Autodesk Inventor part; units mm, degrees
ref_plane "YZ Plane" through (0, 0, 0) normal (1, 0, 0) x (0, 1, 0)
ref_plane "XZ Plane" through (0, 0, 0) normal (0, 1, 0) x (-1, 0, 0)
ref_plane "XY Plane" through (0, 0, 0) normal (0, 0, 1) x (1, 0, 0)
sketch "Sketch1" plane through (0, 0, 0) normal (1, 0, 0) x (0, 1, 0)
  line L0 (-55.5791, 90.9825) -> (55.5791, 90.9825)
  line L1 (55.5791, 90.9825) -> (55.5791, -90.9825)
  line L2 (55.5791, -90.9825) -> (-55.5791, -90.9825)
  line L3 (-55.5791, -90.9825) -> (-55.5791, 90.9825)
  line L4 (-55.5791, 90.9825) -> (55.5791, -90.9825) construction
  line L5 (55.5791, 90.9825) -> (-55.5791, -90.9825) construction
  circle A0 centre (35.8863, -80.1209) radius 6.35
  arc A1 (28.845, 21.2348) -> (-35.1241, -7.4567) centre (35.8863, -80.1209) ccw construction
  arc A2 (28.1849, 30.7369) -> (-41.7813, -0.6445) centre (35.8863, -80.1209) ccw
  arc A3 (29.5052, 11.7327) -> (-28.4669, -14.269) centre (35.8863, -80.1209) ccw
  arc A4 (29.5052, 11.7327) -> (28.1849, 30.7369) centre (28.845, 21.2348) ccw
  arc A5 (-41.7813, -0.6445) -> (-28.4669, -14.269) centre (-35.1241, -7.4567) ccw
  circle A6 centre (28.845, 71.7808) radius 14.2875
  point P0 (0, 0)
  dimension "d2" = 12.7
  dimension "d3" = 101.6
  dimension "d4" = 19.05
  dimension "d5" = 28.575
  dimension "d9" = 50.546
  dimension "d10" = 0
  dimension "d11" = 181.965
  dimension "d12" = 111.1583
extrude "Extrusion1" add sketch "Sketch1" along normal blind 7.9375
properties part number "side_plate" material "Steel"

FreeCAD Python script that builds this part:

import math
import FreeCAD as App
import Part
import Sketcher
Q = App.Units.Quantity


def add_polygon(sketch, points):
    """Adds a closed chain of lines whose ends are joined by coincident constraints."""
    first, n = sketch.GeometryCount, len(points)
    for a, b in zip(points, points[1:] + points[:1]):
        sketch.addGeometry(Part.LineSegment(App.Vector(*a, 0), App.Vector(*b, 0)), False)
    for i in range(n):
        sketch.addConstraint(Sketcher.Constraint("Coincident", first + i, 2, first + (i + 1) % n, 1))

doc = App.newDocument("Part")
params = doc.addObject("Spreadsheet::Sheet", "Params")
for row, (alias, value) in enumerate([
    ("sketch1_diameter", "0.5 in"),
    ("sketch1_diameter2", "1.125 in"),
    ("sketch1_radius", "0.375 in"),
    ("sketch1_radius2", "4.375 in"),
    ("sketch1_width", "0.026 in"),
    ("pad1_length", "0.3125 in"),
], start=1):
    params.set(f"A{row}", alias)
    params.set(f"B{row}", "=" + value)
    params.setAlias(f"B{row}", alias)

body = doc.addObject("PartDesign::Body", "Body")

sketch1 = body.newObject("Sketcher::SketchObject", "Sketch")
sketch1.AttachmentSupport = (doc.getObject("YZ_Plane"), [""])
sketch1.MapMode = "FlatFace"
add_polygon(sketch1, [(55.5791, 90.9825), (-55.5791, 90.9825), (-55.5791, -90.9825), (55.5791, -90.9825)])
sketch1.addGeometry(Part.Circle(App.Vector(35.8863, -80.1209, 0), App.Vector(0, 0, 1), 6.35), False)
sketch1.addGeometry(Part.ArcOfCircle(Part.Circle(App.Vector(35.8863, -80.1209, 0), App.Vector(0, 0, 1), 111.12499), math.radians(93.974009), math.radians(134.340528)), False)
sketch1.addGeometry(Part.ArcOfCircle(Part.Circle(App.Vector(28.845, 21.2348, 0), App.Vector(0, 0, 1), 9.525008), math.radians(-86.025512), math.radians(93.973888)), False)
sketch1.addGeometry(Part.ArcOfCircle(Part.Circle(App.Vector(35.8863, -80.1209, 0), App.Vector(0, 0, 1), 92.074982), math.radians(93.973972), math.radians(134.340537)), False)
sketch1.addGeometry(Part.ArcOfCircle(Part.Circle(App.Vector(-35.1241, -7.4567, 0), App.Vector(0, 0, 1), 9.524935), math.radians(134.340694), math.radians(314.340274)), False)
sketch1.addGeometry(Part.Circle(App.Vector(28.845, 71.7808, 0), App.Vector(0, 0, 1), 14.2875), False)
sketch1.addConstraint([
    Sketcher.Constraint("Coincident", 5, 1, 6, 2),
    Sketcher.Constraint("Coincident", 6, 1, 7, 1),
    Sketcher.Constraint("Coincident", 7, 2, 8, 2),
    Sketcher.Constraint("Coincident", 8, 1, 5, 2),
    Sketcher.Constraint("Horizontal", 0),
    Sketcher.Constraint("Vertical", 1),
    Sketcher.Constraint("Horizontal", 2),
    Sketcher.Constraint("Vertical", 3),
    Sketcher.Constraint("Coincident", 5, 3, 4, 3),
    Sketcher.Constraint("Coincident", 7, 3, 4, 3),
    Sketcher.Constraint("Diameter", 4, Q("0.5 in")),
    Sketcher.Constraint("Diameter", 9, Q("1.125 in")),
    Sketcher.Constraint("Radius", 6, Q("0.375 in")),
    Sketcher.Constraint("DistanceY", 6, 3, 9, 3, Q("1.99 in")),
    Sketcher.Constraint("DistanceX", 0, 2, 0, 1, Q("4.3763 in")),
    Sketcher.Constraint("Radius", 5, Q("4.375 in")),
    Sketcher.Constraint("DistanceY", 1, 2, 1, 1, 181.965),
    Sketcher.Constraint("DistanceY", -1, 1, 0, 2, Q("3.582 in")),
    Sketcher.Constraint("DistanceX", 0, 2, 4, 3, Q("3.601 in")),
    Sketcher.Constraint("DistanceY", 1, 2, 6, 3, Q("4.418 in")),
    Sketcher.Constraint("DistanceX", 8, 3, 3, 2, Q("3.571 in")),
    Sketcher.Constraint("DistanceX", 5, 1, 6, 3, Q("0.026 in")),
    Sketcher.Constraint("DistanceX", 5, 1, 9, 3, Q("0.026 in")),
    Sketcher.Constraint("DistanceX", 6, 3, 6, 1, Q("0.026 in")),
    Sketcher.Constraint("DistanceX", 5, 1, 3, 2, Q("1.0785 in")),
    Sketcher.Constraint("DistanceX", 8, 3, 7, 2, Q("0.2621 in")),
    Sketcher.Constraint("DistanceX", 8, 1, 8, 3, Q("0.2621 in")),
    Sketcher.Constraint("DistanceX", -1, 1, 4, 3, 35.8863),
])
sketch1.setExpression("Constraints[14]", "Params.sketch1_diameter")
sketch1.setExpression("Constraints[15]", "Params.sketch1_diameter2")
sketch1.setExpression("Constraints[16]", "Params.sketch1_radius")
sketch1.setExpression("Constraints[19]", "Params.sketch1_radius2")
sketch1.setExpression("Constraints[27]", "Params.sketch1_width")
pad1 = body.newObject("PartDesign::Pad", "Pad")
pad1.Profile = sketch1
pad1.setExpression("Length", "Params.pad1_length")

doc.recompute()
